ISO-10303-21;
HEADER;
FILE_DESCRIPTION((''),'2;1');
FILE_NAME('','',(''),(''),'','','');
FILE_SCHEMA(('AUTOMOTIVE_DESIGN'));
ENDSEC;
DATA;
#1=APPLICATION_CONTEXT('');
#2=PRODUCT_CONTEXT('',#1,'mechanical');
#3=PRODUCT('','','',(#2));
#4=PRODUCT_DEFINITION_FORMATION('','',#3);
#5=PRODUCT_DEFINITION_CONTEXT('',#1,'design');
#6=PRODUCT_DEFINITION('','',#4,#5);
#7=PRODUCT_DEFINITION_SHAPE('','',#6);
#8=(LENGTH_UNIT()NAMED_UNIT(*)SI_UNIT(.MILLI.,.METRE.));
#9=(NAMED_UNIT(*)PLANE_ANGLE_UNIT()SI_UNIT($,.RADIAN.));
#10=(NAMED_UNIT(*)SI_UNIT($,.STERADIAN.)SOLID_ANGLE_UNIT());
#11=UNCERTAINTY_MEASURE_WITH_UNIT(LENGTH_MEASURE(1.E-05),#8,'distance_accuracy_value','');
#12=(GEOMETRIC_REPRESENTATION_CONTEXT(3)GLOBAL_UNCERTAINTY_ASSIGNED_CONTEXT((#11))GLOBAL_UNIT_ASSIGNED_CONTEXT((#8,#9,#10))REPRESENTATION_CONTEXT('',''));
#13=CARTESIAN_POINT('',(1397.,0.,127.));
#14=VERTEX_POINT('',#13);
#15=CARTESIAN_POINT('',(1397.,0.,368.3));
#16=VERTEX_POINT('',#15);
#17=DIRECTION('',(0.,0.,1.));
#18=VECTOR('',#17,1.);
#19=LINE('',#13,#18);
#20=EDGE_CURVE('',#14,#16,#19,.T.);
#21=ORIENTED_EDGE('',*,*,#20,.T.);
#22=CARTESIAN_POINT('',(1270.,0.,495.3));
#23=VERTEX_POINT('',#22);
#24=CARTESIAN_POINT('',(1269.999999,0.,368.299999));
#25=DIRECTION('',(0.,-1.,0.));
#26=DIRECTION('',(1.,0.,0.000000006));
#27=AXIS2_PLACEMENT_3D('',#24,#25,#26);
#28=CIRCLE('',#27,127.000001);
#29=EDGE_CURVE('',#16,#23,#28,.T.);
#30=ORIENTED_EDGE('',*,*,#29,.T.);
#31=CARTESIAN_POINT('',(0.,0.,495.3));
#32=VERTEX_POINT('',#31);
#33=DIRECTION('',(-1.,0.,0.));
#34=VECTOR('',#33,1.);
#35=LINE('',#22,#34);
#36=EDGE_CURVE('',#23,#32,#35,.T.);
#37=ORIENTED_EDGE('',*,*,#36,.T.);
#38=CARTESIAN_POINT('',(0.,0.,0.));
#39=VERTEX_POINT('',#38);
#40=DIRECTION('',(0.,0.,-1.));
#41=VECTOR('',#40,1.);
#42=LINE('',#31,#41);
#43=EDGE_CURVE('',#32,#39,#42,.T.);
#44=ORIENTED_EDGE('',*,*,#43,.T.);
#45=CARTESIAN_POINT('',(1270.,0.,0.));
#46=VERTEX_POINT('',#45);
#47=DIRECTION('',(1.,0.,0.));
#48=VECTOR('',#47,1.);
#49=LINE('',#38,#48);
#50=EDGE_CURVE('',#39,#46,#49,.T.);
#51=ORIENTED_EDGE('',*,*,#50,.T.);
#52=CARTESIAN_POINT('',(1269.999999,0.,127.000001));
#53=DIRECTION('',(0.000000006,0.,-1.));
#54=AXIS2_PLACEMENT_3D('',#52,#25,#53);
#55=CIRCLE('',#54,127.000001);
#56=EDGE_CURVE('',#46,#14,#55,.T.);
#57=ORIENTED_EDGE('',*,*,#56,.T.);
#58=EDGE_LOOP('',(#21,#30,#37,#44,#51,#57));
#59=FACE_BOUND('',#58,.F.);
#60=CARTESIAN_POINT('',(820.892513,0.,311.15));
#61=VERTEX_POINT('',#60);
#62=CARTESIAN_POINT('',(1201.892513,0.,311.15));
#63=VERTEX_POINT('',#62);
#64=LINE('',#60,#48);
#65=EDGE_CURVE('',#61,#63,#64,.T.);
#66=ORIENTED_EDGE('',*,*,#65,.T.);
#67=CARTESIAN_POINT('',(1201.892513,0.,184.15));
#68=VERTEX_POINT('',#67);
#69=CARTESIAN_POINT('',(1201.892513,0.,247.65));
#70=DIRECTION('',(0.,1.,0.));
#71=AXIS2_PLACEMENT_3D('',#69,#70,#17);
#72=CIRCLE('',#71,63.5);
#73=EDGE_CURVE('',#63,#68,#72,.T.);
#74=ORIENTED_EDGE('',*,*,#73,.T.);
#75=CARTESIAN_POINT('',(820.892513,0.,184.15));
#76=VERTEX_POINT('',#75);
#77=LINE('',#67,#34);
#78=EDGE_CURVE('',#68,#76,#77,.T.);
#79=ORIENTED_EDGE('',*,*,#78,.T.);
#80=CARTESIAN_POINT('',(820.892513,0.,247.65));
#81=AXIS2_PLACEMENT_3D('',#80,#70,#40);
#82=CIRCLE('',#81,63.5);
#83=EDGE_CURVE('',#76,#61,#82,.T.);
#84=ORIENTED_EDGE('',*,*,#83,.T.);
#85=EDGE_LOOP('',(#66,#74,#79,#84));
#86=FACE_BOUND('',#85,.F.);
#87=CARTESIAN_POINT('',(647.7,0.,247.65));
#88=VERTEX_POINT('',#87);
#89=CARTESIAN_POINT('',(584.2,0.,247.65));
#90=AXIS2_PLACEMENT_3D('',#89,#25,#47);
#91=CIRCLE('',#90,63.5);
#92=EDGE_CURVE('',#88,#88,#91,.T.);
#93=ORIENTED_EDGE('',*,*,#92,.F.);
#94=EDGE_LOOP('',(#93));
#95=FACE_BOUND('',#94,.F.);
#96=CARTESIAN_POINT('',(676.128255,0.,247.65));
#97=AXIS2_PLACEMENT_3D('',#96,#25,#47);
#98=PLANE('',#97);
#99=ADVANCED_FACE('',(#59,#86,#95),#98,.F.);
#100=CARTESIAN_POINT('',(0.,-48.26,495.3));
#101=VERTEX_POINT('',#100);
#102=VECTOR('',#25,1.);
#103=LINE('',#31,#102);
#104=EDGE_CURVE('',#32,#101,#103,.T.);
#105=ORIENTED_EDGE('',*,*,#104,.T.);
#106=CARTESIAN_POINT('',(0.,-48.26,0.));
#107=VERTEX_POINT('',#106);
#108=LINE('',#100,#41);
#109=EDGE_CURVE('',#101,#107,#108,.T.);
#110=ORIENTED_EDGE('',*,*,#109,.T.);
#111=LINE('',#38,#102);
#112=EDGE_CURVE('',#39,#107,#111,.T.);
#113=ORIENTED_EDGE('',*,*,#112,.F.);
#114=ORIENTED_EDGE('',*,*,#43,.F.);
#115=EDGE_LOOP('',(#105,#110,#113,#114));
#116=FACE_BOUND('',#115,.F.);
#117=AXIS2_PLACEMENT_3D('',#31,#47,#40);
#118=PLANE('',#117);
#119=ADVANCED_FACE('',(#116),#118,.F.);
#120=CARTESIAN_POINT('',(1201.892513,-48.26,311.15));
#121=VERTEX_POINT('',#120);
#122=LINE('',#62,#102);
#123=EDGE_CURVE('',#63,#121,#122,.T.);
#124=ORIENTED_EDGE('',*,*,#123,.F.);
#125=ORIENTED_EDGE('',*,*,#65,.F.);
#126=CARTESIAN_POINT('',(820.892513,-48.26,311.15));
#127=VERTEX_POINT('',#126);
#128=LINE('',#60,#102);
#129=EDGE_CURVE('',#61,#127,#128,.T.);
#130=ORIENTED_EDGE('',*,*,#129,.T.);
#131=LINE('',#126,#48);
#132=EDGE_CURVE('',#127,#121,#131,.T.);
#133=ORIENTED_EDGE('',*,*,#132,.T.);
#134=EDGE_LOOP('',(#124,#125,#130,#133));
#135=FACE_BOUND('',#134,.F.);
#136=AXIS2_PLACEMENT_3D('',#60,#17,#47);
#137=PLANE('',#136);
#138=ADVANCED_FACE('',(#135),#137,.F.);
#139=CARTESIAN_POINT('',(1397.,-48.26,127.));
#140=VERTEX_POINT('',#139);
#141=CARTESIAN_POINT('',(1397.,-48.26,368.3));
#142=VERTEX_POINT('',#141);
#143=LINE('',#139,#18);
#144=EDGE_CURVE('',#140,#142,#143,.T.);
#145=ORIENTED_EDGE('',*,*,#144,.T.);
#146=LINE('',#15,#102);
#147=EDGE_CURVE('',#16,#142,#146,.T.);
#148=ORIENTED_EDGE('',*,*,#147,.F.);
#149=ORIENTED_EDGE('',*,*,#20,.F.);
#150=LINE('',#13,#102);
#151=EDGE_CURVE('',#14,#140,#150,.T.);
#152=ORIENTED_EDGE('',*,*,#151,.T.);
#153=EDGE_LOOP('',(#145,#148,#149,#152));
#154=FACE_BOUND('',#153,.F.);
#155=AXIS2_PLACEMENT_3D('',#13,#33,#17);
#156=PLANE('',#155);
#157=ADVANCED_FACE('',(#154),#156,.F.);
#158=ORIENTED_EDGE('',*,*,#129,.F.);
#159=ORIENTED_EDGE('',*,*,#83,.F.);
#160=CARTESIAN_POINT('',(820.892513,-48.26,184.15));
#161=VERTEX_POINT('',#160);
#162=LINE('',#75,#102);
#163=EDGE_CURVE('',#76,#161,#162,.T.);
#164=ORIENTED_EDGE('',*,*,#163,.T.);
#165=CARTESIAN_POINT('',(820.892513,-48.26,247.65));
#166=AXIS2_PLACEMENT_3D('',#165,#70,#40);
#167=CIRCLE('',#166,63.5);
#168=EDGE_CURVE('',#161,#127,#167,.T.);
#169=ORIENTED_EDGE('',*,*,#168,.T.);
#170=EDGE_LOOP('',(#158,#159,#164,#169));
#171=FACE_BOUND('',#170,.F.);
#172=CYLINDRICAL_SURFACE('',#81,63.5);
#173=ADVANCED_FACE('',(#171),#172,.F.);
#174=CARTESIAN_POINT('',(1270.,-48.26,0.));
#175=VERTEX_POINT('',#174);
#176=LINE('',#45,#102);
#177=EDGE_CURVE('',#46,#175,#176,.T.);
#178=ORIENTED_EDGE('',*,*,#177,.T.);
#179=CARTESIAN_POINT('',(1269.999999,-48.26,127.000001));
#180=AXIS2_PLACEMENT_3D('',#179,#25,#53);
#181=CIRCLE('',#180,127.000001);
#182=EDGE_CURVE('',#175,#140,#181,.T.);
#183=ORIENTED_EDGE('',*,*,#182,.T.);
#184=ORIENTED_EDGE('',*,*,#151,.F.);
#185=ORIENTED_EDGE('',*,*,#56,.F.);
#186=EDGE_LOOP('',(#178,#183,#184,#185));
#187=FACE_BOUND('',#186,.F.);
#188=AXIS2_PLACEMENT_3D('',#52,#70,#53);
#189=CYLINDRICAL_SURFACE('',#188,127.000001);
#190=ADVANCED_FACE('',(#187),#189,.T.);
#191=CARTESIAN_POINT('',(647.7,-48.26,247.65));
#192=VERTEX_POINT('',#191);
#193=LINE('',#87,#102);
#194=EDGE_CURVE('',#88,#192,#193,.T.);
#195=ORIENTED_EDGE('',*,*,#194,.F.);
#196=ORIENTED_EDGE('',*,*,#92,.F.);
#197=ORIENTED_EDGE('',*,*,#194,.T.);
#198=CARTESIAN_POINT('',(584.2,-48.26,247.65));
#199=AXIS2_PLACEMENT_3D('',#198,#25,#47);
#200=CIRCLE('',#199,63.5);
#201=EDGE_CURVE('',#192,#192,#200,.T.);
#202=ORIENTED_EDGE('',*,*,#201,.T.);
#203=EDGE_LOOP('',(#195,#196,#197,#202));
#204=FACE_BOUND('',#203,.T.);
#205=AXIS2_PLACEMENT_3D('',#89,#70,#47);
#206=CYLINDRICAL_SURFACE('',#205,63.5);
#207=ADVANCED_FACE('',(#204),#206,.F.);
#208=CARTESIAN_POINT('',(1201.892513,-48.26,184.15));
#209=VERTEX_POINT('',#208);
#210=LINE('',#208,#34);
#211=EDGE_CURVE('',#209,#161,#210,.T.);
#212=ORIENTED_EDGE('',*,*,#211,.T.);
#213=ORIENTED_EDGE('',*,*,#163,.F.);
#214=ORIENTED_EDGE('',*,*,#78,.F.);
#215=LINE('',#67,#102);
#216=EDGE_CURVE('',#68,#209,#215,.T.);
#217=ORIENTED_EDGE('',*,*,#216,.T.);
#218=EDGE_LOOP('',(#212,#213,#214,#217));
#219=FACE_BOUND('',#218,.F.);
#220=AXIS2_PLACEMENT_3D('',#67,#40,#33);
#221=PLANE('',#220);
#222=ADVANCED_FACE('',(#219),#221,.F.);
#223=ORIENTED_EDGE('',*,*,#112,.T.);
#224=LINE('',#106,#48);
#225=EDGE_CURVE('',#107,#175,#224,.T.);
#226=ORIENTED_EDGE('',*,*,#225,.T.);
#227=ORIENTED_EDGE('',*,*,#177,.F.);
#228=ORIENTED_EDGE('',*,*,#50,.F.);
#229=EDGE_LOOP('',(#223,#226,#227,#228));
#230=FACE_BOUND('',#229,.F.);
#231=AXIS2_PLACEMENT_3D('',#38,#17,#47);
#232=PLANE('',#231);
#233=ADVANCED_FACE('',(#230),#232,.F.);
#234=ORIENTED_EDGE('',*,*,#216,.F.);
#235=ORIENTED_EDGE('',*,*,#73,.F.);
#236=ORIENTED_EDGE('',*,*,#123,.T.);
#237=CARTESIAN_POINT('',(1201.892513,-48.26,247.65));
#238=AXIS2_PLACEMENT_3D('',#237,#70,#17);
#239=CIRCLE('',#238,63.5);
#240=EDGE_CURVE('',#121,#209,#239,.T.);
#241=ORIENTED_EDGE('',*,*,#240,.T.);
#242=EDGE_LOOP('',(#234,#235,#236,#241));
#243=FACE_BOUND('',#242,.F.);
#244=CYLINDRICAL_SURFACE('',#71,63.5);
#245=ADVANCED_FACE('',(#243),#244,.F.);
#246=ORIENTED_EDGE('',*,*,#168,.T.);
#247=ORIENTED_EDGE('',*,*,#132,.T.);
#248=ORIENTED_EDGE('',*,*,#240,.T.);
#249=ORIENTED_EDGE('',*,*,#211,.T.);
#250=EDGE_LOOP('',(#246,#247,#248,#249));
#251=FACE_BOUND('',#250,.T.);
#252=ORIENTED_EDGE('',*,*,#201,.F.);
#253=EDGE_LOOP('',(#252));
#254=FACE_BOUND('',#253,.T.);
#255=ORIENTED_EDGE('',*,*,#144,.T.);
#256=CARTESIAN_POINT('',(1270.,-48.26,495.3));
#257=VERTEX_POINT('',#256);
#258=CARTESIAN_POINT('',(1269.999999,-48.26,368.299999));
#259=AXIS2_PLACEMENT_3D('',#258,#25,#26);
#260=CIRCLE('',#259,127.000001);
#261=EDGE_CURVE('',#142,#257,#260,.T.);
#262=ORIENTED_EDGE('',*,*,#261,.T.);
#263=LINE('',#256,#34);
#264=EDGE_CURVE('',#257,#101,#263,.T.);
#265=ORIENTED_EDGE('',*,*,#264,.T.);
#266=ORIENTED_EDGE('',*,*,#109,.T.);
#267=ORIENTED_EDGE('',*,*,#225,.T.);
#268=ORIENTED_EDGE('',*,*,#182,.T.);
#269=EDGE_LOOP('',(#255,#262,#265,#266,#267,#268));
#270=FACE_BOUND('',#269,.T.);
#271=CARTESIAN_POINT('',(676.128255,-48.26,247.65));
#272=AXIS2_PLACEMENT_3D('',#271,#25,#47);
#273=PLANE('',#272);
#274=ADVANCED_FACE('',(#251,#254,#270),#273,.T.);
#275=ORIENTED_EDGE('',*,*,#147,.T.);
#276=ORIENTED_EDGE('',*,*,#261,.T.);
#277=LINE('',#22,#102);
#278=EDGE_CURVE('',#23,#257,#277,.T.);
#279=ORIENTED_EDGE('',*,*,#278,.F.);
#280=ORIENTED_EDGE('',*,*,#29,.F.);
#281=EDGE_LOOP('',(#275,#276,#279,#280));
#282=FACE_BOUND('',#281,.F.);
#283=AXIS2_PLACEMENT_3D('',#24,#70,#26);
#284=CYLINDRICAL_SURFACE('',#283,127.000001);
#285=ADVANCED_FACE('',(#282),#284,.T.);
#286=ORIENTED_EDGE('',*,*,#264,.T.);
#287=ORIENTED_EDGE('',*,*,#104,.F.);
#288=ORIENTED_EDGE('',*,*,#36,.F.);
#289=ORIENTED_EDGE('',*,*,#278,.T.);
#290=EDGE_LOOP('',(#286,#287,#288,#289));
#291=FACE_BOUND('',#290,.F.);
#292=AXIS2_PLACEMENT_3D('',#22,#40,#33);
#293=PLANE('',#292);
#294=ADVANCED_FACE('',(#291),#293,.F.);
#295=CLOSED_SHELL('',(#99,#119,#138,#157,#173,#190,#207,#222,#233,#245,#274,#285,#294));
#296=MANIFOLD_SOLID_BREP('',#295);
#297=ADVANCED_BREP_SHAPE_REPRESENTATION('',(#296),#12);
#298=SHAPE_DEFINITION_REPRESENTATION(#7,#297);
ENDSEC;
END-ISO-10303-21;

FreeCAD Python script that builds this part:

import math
import FreeCAD as App
import Part
import Sketcher
Q = App.Units.Quantity

doc = App.newDocument("Part")
body = doc.addObject("PartDesign::Body", "Body")

# Sketch on XZ plane
sketch1 = body.newObject("Sketcher::SketchObject", "Sketch")
sketch1.AttachmentSupport = (doc.getObject("XZ_Plane"), [""])
sketch1.MapMode = "FlatFace"
sketch1.addGeometry(Part.LineSegment(App.Vector(0, 495.3, 0), App.Vector(0, 0, 0)), False)
sketch1.addGeometry(Part.LineSegment(App.Vector(0, 0, 0), App.Vector(1270, 0, 0)), False)
sketch1.addGeometry(Part.ArcOfCircle(Part.Circle(App.Vector(1269.999999, 127.000001, 0), App.Vector(0, 0, 1), 127.000001), math.radians(-90), math.radians(0)), False)
sketch1.addGeometry(Part.LineSegment(App.Vector(1397, 127, 0), App.Vector(1397, 368.3, 0)), False)
sketch1.addGeometry(Part.ArcOfCircle(Part.Circle(App.Vector(1269.999999, 368.299999, 0), App.Vector(0, 0, 1), 127.000001), math.radians(0), math.radians(90)), False)
sketch1.addGeometry(Part.LineSegment(App.Vector(1270, 495.3, 0), App.Vector(0, 495.3, 0)), False)
sketch1.addGeometry(Part.ArcOfCircle(Part.Circle(App.Vector(1201.892513, 247.65, 0), App.Vector(0, 0, 1), 63.5), math.radians(-90), math.radians(90)), False)
sketch1.addGeometry(Part.LineSegment(App.Vector(1201.892513, 184.15, 0), App.Vector(820.892513, 184.15, 0)), False)
sketch1.addGeometry(Part.ArcOfCircle(Part.Circle(App.Vector(820.892513, 247.65, 0), App.Vector(0, 0, 1), 63.5), math.radians(90), math.radians(270)), False)
sketch1.addGeometry(Part.LineSegment(App.Vector(820.892513, 311.15, 0), App.Vector(1201.892513, 311.15, 0)), False)
sketch1.addGeometry(Part.Circle(App.Vector(584.2, 247.65, 0), App.Vector(0, 0, 1), 63.5), False)
sketch1.addConstraint(Sketcher.Constraint("Coincident", 0, 2, 1, 1))
sketch1.addConstraint(Sketcher.Constraint("Tangent", 1, 2, 2, 1))
sketch1.addConstraint(Sketcher.Constraint("Tangent", 2, 2, 3, 1))
sketch1.addConstraint(Sketcher.Constraint("Tangent", 3, 2, 4, 1))
sketch1.addConstraint(Sketcher.Constraint("Tangent", 4, 2, 5, 1))
sketch1.addConstraint(Sketcher.Constraint("Coincident", 5, 2, 0, 1))
sketch1.addConstraint(Sketcher.Constraint("Tangent", 6, 1, 7, 1))
sketch1.addConstraint(Sketcher.Constraint("Tangent", 7, 2, 8, 2))
sketch1.addConstraint(Sketcher.Constraint("Tangent", 8, 1, 9, 1))
sketch1.addConstraint(Sketcher.Constraint("Tangent", 9, 2, 6, 2))
sketch1.addConstraint(Sketcher.Constraint("Vertical", 0))
sketch1.addConstraint(Sketcher.Constraint("Horizontal", 1))
sketch1.addConstraint(Sketcher.Constraint("Vertical", 3))
sketch1.addConstraint(Sketcher.Constraint("Horizontal", 5))
sketch1.addConstraint(Sketcher.Constraint("Horizontal", 7))
sketch1.addConstraint(Sketcher.Constraint("Horizontal", 9))
sketch1.addConstraint(Sketcher.Constraint("Coincident", 0, 2, -1, 1))
sketch1.addConstraint(Sketcher.Constraint("Equal", 2, 4))
sketch1.addConstraint(Sketcher.Constraint("Equal", 8, 10))
sketch1.addConstraint(Sketcher.Constraint("Horizontal", 8, 3, 10, 3))
sketch1.addConstraint(Sketcher.Constraint("Diameter", 10, Q("5 in")))
sketch1.addConstraint(Sketcher.Constraint("Radius", 2, Q("5 in")))
sketch1.addConstraint(Sketcher.Constraint("DistanceX", 1, 1, 1, 2, Q("50 in")))
sketch1.addConstraint(Sketcher.Constraint("DistanceX", 7, 2, 7, 1, Q("15 in")))
sketch1.addConstraint(Sketcher.Constraint("DistanceY", 0, 2, 0, 1, Q("19.5 in")))
sketch1.addConstraint(Sketcher.Constraint("DistanceX", -1, 1, 10, 3, Q("23 in")))
sketch1.addConstraint(Sketcher.Constraint("DistanceY", -1, 1, 6, 3, Q("9.75 in")))
sketch1.addConstraint(Sketcher.Constraint("DistanceX", -1, 1, 6, 3, 1201.892513))
pad1 = body.newObject("PartDesign::Pad", "Pad")
pad1.Profile = sketch1
pad1.Length = Q("1.9 in")

doc.recompute()
